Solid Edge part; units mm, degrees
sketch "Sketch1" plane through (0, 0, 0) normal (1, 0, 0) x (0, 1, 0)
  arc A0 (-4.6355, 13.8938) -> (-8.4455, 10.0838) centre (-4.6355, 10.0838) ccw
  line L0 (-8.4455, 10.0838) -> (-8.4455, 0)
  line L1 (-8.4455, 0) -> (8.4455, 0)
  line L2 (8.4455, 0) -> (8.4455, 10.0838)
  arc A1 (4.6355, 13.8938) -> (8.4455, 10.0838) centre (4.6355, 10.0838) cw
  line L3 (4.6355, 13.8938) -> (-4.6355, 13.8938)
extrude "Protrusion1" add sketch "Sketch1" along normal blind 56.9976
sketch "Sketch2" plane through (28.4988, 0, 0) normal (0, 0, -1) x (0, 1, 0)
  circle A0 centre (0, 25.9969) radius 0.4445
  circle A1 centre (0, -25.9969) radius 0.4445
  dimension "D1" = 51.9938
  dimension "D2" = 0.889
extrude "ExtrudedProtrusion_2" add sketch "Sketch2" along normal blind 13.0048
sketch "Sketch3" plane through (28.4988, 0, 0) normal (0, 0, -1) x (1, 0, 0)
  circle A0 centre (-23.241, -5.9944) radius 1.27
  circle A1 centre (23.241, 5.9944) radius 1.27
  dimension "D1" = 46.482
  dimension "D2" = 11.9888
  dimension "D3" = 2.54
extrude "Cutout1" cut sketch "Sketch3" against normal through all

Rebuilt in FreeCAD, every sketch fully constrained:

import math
import FreeCAD as App
import Part
import Sketcher
Q = App.Units.Quantity

doc = App.newDocument("Part")
body = doc.addObject("PartDesign::Body", "Body")

sketch1 = body.newObject("Sketcher::SketchObject", "Sketch")
sketch1.AttachmentSupport = (doc.getObject("YZ_Plane"), [""])
sketch1.MapMode = "FlatFace"
sketch1.addGeometry([
    Part.LineSegment(App.Vector(4.6, 13.9, 0), App.Vector(-4.6, 13.9, 0)),
    Part.ArcOfCircle(Part.Circle(App.Vector(-4.6, 10.1, 0), App.Vector(0, 0, 1), 3.8), math.radians(90), math.radians(180)),
    Part.LineSegment(App.Vector(-8.4, 10.1, 0), App.Vector(-8.4, 0, 0)),
    Part.LineSegment(App.Vector(-8.4, 0, 0), App.Vector(8.4, 0, 0)),
    Part.LineSegment(App.Vector(8.4, 0, 0), App.Vector(8.4, 10.1, 0)),
    Part.ArcOfCircle(Part.Circle(App.Vector(4.6, 10.1, 0), App.Vector(0, 0, 1), 3.8), math.radians(0), math.radians(90)),
], False)
sketch1.addConstraint([
    Sketcher.Constraint("Tangent", 0, 2, 1, 1),
    Sketcher.Constraint("Tangent", 1, 2, 2, 1),
    Sketcher.Constraint("Coincident", 2, 2, 3, 1),
    Sketcher.Constraint("Coincident", 3, 2, 4, 1),
    Sketcher.Constraint("Tangent", 4, 2, 5, 1),
    Sketcher.Constraint("Tangent", 5, 2, 0, 1),
    Sketcher.Constraint("Horizontal", 0),
    Sketcher.Constraint("Vertical", 2),
    Sketcher.Constraint("Horizontal", 3),
    Sketcher.Constraint("Vertical", 4),
    Sketcher.Constraint("Equal", 1, 5),
    Sketcher.Constraint("Symmetric", 2, 2, 3, 2, -1, 1),
    Sketcher.Constraint("Radius", 1, Q("0.15 in")),
    Sketcher.Constraint("DistanceX", 0, 2, 0, 1, Q("0.365 in")),
    Sketcher.Constraint("DistanceY", 2, 2, 2, 1, Q("0.397 in")),
])
pad1 = body.newObject("PartDesign::Pad", "Pad")
pad1.Profile = sketch1
pad1.Length = Q("2.244 in")

sketch2 = body.newObject("Sketcher::SketchObject", "Sketch001")
sketch2.AttachmentSupport = (doc.getObject("XY_Plane"), [""])
sketch2.MapMode = "FlatFace"
sketch2.addGeometry([
    Part.Circle(App.Vector(54.5, 0, 0), App.Vector(0, 0, 1), 0.44),
    Part.Circle(App.Vector(2.5, 0, 0), App.Vector(0, 0, 1), 0.44),
], False)
sketch2.addConstraint([
    Sketcher.Constraint("Equal", 0, 1),
    Sketcher.Constraint("PointOnObject", 0, 3, -1),
    Sketcher.Constraint("PointOnObject", 1, 3, -1),
    Sketcher.Constraint("Diameter", 0, Q("0.035 in")),
    Sketcher.Constraint("DistanceX", 1, 3, 0, 3, Q("2.047 in")),
    Sketcher.Constraint("DistanceX", -1, 1, 0, 3, Q("2.1455 in")),
])
pad2 = body.newObject("PartDesign::Pad", "Pad001")
pad2.Profile = sketch2
pad2.Length = Q("0.512 in")
pad2.Reversed = True

sketch3 = body.newObject("Sketcher::SketchObject", "Sketch002")
sketch3.AttachmentSupport = (doc.getObject("XY_Plane"), [""])
sketch3.MapMode = "FlatFace"
sketch3.addGeometry([
    Part.Circle(App.Vector(5.3, 6, 0), App.Vector(0, 0, 1), 1.3),
    Part.Circle(App.Vector(51.7, -6, 0), App.Vector(0, 0, 1), 1.3),
], False)
sketch3.addConstraint([
    Sketcher.Constraint("Equal", 0, 1),
    Sketcher.Constraint("Diameter", 0, Q("0.1 in")),
    Sketcher.Constraint("DistanceX", 0, 3, 1, 3, Q("1.83 in")),
    Sketcher.Constraint("DistanceX", -1, 1, 0, 3, Q("0.207 in")),
    Sketcher.Constraint("DistanceY", -1, 1, 0, 3, Q("0.236 in")),
    Sketcher.Constraint("DistanceY", 1, 3, -1, 1, Q("0.236 in")),
])
pocket1 = body.newObject("PartDesign::Pocket", "Pocket")
pocket1.Profile = sketch3
pocket1.Type = "ThroughAll"
pocket1.Reversed = True

doc.recompute()
